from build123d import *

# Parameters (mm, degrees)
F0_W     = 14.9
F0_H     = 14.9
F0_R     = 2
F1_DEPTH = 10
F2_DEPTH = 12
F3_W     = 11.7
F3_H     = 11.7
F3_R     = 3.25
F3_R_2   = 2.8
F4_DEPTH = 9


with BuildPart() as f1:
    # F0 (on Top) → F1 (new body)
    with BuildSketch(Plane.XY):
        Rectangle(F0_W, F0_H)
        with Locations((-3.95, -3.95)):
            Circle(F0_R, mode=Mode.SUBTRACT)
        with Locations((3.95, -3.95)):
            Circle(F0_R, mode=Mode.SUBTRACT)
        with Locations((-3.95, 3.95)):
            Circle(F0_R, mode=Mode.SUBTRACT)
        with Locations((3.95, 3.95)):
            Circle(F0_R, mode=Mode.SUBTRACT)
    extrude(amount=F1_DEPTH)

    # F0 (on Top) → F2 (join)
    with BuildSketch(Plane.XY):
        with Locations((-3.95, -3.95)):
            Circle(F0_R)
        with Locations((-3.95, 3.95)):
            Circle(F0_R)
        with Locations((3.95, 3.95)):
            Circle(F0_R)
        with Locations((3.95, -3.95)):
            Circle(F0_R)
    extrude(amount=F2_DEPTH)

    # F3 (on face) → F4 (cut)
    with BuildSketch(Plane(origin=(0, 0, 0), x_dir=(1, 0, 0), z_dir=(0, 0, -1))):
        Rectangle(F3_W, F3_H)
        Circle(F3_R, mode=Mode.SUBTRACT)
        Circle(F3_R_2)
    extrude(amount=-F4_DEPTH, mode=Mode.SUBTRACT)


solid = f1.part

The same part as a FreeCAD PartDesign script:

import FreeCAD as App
import Part
import Sketcher

V = App.Vector

doc = App.newDocument("Part")
params = doc.addObject("Spreadsheet::Sheet", "Params")
for row, (alias, value) in enumerate([
    ("sketch1_diameter", "4 mm"),
    ("sketch1_width", "14.9 mm"),
    ("pad1_length", "10 mm"),
    ("sketch2_diameter", "4 mm"),
    ("pad2_length", "12 mm"),
    ("sketch3_diameter", "6.5 mm"),
    ("sketch3_diameter2", "5.6 mm"),
    ("sketch3_width", "11.7 mm"),
    ("pocket1_length", "9 mm"),
], start=1):
    params.set(f"A{row}", alias)
    params.set(f"B{row}", "=" + value)
    params.setAlias(f"B{row}", alias)

body = doc.addObject("PartDesign::Body", "Body")

# Sketch on XY plane
sketch1 = body.newObject("Sketcher::SketchObject", "Sketch")
sketch1.AttachmentSupport = (doc.getObject("XY_Plane"), [""])
sketch1.MapMode = "FlatFace"
sketch1.addGeometry(Part.LineSegment(V(-7.45, 7.45, 0), V(-7.45, -7.45, 0)), False)
sketch1.addGeometry(Part.LineSegment(V(-7.45, -7.45, 0), V(7.45, -7.45, 0)), False)
sketch1.addGeometry(Part.LineSegment(V(7.45, -7.45, 0), V(7.45, 7.45, 0)), False)
sketch1.addGeometry(Part.LineSegment(V(7.45, 7.45, 0), V(-7.45, 7.45, 0)), False)
sketch1.addGeometry(Part.Circle(V(-3.95, -3.95, 0), V(0, 0, 1), 2), False)
sketch1.addGeometry(Part.Circle(V(3.95, -3.95, 0), V(0, 0, 1), 2), False)
sketch1.addGeometry(Part.Circle(V(-3.95, 3.95, 0), V(0, 0, 1), 2), False)
sketch1.addGeometry(Part.Circle(V(3.95, 3.95, 0), V(0, 0, 1), 2), False)
sketch1.addConstraint(Sketcher.Constraint("Coincident", 0, 2, 1, 1))
sketch1.addConstraint(Sketcher.Constraint("Coincident", 1, 2, 2, 1))
sketch1.addConstraint(Sketcher.Constraint("Coincident", 2, 2, 3, 1))
sketch1.addConstraint(Sketcher.Constraint("Coincident", 3, 2, 0, 1))
sketch1.addConstraint(Sketcher.Constraint("Vertical", 0))
sketch1.addConstraint(Sketcher.Constraint("Horizontal", 1))
sketch1.addConstraint(Sketcher.Constraint("Vertical", 2))
sketch1.addConstraint(Sketcher.Constraint("Horizontal", 3))
sketch1.addConstraint(Sketcher.Constraint("Equal", 4, 5))
sketch1.addConstraint(Sketcher.Constraint("Equal", 5, 6))
sketch1.addConstraint(Sketcher.Constraint("Equal", 6, 7))
sketch1.addConstraint(Sketcher.Constraint("Symmetric", 5, 3, 6, 3, -1, 1))
sketch1.addConstraint(Sketcher.Constraint("Symmetric", 4, 3, 7, 3, -1, 1))
sketch1.addConstraint(Sketcher.Constraint("Symmetric", 0, 2, 2, 2, -1, 1))
sketch1.addConstraint(Sketcher.Constraint("Symmetric", 4, 3, 5, 3, -2))
sketch1.addConstraint(Sketcher.Constraint("Equal", 3, 0))
sketch1.addConstraint(Sketcher.Constraint("Diameter", 4, 4.0))
sketch1.addConstraint(Sketcher.Constraint("DistanceX", 1, 1, 1, 2, 14.9))
sketch1.addConstraint(Sketcher.Constraint("DistanceX", 4, 3, 5, 3, 7.9))
sketch1.addConstraint(Sketcher.Constraint("DistanceY", 4, 3, 6, 3, 7.9))
sketch1.setExpression("Constraints[16]", "Params.sketch1_diameter")
sketch1.setExpression("Constraints[17]", "Params.sketch1_width")
pad1 = body.newObject("PartDesign::Pad", "Pad")
pad1.Profile = sketch1
pad1.setExpression("Length", "Params.pad1_length")

# Sketch on XY plane
sketch2 = body.newObject("Sketcher::SketchObject", "Sketch001")
sketch2.AttachmentSupport = (doc.getObject("XY_Plane"), [""])
sketch2.MapMode = "FlatFace"
sketch2.addGeometry(Part.Circle(V(-3.95, -3.95, 0), V(0, 0, 1), 2), False)
sketch2.addGeometry(Part.Circle(V(-3.95, 3.95, 0), V(0, 0, 1), 2), False)
sketch2.addGeometry(Part.Circle(V(3.95, 3.95, 0), V(0, 0, 1), 2), False)
sketch2.addGeometry(Part.Circle(V(3.95, -3.95, 0), V(0, 0, 1), 2), False)
sketch2.addConstraint(Sketcher.Constraint("Equal", 0, 1))
sketch2.addConstraint(Sketcher.Constraint("Equal", 1, 2))
sketch2.addConstraint(Sketcher.Constraint("Equal", 2, 3))
sketch2.addConstraint(Sketcher.Constraint("Symmetric", 0, 3, 2, 3, -1, 1))
sketch2.addConstraint(Sketcher.Constraint("Symmetric", 1, 3, 3, 3, -1, 1))
sketch2.addConstraint(Sketcher.Constraint("Symmetric", 1, 3, 2, 3, -2))
sketch2.addConstraint(Sketcher.Constraint("Diameter", 0, 4.0))
sketch2.addConstraint(Sketcher.Constraint("DistanceY", 0, 3, 1, 3, 7.9))
sketch2.addConstraint(Sketcher.Constraint("DistanceX", 1, 3, 2, 3, 7.9))
sketch2.setExpression("Constraints[6]", "Params.sketch2_diameter")
pad2 = body.newObject("PartDesign::Pad", "Pad001")
pad2.Profile = sketch2
pad2.setExpression("Length", "Params.pad2_length")

# Sketch on XY plane
sketch3 = body.newObject("Sketcher::SketchObject", "Sketch002")
sketch3.AttachmentSupport = (doc.getObject("XY_Plane"), [""])
sketch3.MapMode = "FlatFace"
sketch3.addGeometry(Part.LineSegment(V(-5.85, -5.85, 0), V(-5.85, 5.85, 0)), False)
sketch3.addGeometry(Part.LineSegment(V(-5.85, 5.85, 0), V(5.85, 5.85, 0)), False)
sketch3.addGeometry(Part.LineSegment(V(5.85, 5.85, 0), V(5.85, -5.85, 0)), False)
sketch3.addGeometry(Part.LineSegment(V(5.85, -5.85, 0), V(-5.85, -5.85, 0)), False)
sketch3.addGeometry(Part.Circle(V(0, 0, 0), V(0, 0, 1), 3.25), False)
sketch3.addGeometry(Part.Circle(V(0, 0, 0), V(0, 0, 1), 2.8), False)
sketch3.addConstraint(Sketcher.Constraint("Coincident", 0, 2, 1, 1))
sketch3.addConstraint(Sketcher.Constraint("Coincident", 1, 2, 2, 1))
sketch3.addConstraint(Sketcher.Constraint("Coincident", 2, 2, 3, 1))
sketch3.addConstraint(Sketcher.Constraint("Coincident", 3, 2, 0, 1))
sketch3.addConstraint(Sketcher.Constraint("Vertical", 0))
sketch3.addConstraint(Sketcher.Constraint("Horizontal", 1))
sketch3.addConstraint(Sketcher.Constraint("Vertical", 2))
sketch3.addConstraint(Sketcher.Constraint("Horizontal", 3))
sketch3.addConstraint(Sketcher.Constraint("Coincident", 4, 3, -1, 1))
sketch3.addConstraint(Sketcher.Constraint("Coincident", 5, 3, -1, 1))
sketch3.addConstraint(Sketcher.Constraint("Symmetric", 0, 2, 2, 2, -1, 1))
sketch3.addConstraint(Sketcher.Constraint("Equal", 3, 0))
sketch3.addConstraint(Sketcher.Constraint("Diameter", 4, 6.5))
sketch3.addConstraint(Sketcher.Constraint("Diameter", 5, 5.6))
sketch3.addConstraint(Sketcher.Constraint("DistanceX", 1, 1, 1, 2, 11.7))
sketch3.setExpression("Constraints[12]", "Params.sketch3_diameter")
sketch3.setExpression("Constraints[13]", "Params.sketch3_diameter2")
sketch3.setExpression("Constraints[14]", "Params.sketch3_width")
pocket1 = body.newObject("PartDesign::Pocket", "Pocket")
pocket1.Profile = sketch3
pocket1.setExpression("Length", "Params.pocket1_length")
pocket1.Reversed = True

doc.recompute()
